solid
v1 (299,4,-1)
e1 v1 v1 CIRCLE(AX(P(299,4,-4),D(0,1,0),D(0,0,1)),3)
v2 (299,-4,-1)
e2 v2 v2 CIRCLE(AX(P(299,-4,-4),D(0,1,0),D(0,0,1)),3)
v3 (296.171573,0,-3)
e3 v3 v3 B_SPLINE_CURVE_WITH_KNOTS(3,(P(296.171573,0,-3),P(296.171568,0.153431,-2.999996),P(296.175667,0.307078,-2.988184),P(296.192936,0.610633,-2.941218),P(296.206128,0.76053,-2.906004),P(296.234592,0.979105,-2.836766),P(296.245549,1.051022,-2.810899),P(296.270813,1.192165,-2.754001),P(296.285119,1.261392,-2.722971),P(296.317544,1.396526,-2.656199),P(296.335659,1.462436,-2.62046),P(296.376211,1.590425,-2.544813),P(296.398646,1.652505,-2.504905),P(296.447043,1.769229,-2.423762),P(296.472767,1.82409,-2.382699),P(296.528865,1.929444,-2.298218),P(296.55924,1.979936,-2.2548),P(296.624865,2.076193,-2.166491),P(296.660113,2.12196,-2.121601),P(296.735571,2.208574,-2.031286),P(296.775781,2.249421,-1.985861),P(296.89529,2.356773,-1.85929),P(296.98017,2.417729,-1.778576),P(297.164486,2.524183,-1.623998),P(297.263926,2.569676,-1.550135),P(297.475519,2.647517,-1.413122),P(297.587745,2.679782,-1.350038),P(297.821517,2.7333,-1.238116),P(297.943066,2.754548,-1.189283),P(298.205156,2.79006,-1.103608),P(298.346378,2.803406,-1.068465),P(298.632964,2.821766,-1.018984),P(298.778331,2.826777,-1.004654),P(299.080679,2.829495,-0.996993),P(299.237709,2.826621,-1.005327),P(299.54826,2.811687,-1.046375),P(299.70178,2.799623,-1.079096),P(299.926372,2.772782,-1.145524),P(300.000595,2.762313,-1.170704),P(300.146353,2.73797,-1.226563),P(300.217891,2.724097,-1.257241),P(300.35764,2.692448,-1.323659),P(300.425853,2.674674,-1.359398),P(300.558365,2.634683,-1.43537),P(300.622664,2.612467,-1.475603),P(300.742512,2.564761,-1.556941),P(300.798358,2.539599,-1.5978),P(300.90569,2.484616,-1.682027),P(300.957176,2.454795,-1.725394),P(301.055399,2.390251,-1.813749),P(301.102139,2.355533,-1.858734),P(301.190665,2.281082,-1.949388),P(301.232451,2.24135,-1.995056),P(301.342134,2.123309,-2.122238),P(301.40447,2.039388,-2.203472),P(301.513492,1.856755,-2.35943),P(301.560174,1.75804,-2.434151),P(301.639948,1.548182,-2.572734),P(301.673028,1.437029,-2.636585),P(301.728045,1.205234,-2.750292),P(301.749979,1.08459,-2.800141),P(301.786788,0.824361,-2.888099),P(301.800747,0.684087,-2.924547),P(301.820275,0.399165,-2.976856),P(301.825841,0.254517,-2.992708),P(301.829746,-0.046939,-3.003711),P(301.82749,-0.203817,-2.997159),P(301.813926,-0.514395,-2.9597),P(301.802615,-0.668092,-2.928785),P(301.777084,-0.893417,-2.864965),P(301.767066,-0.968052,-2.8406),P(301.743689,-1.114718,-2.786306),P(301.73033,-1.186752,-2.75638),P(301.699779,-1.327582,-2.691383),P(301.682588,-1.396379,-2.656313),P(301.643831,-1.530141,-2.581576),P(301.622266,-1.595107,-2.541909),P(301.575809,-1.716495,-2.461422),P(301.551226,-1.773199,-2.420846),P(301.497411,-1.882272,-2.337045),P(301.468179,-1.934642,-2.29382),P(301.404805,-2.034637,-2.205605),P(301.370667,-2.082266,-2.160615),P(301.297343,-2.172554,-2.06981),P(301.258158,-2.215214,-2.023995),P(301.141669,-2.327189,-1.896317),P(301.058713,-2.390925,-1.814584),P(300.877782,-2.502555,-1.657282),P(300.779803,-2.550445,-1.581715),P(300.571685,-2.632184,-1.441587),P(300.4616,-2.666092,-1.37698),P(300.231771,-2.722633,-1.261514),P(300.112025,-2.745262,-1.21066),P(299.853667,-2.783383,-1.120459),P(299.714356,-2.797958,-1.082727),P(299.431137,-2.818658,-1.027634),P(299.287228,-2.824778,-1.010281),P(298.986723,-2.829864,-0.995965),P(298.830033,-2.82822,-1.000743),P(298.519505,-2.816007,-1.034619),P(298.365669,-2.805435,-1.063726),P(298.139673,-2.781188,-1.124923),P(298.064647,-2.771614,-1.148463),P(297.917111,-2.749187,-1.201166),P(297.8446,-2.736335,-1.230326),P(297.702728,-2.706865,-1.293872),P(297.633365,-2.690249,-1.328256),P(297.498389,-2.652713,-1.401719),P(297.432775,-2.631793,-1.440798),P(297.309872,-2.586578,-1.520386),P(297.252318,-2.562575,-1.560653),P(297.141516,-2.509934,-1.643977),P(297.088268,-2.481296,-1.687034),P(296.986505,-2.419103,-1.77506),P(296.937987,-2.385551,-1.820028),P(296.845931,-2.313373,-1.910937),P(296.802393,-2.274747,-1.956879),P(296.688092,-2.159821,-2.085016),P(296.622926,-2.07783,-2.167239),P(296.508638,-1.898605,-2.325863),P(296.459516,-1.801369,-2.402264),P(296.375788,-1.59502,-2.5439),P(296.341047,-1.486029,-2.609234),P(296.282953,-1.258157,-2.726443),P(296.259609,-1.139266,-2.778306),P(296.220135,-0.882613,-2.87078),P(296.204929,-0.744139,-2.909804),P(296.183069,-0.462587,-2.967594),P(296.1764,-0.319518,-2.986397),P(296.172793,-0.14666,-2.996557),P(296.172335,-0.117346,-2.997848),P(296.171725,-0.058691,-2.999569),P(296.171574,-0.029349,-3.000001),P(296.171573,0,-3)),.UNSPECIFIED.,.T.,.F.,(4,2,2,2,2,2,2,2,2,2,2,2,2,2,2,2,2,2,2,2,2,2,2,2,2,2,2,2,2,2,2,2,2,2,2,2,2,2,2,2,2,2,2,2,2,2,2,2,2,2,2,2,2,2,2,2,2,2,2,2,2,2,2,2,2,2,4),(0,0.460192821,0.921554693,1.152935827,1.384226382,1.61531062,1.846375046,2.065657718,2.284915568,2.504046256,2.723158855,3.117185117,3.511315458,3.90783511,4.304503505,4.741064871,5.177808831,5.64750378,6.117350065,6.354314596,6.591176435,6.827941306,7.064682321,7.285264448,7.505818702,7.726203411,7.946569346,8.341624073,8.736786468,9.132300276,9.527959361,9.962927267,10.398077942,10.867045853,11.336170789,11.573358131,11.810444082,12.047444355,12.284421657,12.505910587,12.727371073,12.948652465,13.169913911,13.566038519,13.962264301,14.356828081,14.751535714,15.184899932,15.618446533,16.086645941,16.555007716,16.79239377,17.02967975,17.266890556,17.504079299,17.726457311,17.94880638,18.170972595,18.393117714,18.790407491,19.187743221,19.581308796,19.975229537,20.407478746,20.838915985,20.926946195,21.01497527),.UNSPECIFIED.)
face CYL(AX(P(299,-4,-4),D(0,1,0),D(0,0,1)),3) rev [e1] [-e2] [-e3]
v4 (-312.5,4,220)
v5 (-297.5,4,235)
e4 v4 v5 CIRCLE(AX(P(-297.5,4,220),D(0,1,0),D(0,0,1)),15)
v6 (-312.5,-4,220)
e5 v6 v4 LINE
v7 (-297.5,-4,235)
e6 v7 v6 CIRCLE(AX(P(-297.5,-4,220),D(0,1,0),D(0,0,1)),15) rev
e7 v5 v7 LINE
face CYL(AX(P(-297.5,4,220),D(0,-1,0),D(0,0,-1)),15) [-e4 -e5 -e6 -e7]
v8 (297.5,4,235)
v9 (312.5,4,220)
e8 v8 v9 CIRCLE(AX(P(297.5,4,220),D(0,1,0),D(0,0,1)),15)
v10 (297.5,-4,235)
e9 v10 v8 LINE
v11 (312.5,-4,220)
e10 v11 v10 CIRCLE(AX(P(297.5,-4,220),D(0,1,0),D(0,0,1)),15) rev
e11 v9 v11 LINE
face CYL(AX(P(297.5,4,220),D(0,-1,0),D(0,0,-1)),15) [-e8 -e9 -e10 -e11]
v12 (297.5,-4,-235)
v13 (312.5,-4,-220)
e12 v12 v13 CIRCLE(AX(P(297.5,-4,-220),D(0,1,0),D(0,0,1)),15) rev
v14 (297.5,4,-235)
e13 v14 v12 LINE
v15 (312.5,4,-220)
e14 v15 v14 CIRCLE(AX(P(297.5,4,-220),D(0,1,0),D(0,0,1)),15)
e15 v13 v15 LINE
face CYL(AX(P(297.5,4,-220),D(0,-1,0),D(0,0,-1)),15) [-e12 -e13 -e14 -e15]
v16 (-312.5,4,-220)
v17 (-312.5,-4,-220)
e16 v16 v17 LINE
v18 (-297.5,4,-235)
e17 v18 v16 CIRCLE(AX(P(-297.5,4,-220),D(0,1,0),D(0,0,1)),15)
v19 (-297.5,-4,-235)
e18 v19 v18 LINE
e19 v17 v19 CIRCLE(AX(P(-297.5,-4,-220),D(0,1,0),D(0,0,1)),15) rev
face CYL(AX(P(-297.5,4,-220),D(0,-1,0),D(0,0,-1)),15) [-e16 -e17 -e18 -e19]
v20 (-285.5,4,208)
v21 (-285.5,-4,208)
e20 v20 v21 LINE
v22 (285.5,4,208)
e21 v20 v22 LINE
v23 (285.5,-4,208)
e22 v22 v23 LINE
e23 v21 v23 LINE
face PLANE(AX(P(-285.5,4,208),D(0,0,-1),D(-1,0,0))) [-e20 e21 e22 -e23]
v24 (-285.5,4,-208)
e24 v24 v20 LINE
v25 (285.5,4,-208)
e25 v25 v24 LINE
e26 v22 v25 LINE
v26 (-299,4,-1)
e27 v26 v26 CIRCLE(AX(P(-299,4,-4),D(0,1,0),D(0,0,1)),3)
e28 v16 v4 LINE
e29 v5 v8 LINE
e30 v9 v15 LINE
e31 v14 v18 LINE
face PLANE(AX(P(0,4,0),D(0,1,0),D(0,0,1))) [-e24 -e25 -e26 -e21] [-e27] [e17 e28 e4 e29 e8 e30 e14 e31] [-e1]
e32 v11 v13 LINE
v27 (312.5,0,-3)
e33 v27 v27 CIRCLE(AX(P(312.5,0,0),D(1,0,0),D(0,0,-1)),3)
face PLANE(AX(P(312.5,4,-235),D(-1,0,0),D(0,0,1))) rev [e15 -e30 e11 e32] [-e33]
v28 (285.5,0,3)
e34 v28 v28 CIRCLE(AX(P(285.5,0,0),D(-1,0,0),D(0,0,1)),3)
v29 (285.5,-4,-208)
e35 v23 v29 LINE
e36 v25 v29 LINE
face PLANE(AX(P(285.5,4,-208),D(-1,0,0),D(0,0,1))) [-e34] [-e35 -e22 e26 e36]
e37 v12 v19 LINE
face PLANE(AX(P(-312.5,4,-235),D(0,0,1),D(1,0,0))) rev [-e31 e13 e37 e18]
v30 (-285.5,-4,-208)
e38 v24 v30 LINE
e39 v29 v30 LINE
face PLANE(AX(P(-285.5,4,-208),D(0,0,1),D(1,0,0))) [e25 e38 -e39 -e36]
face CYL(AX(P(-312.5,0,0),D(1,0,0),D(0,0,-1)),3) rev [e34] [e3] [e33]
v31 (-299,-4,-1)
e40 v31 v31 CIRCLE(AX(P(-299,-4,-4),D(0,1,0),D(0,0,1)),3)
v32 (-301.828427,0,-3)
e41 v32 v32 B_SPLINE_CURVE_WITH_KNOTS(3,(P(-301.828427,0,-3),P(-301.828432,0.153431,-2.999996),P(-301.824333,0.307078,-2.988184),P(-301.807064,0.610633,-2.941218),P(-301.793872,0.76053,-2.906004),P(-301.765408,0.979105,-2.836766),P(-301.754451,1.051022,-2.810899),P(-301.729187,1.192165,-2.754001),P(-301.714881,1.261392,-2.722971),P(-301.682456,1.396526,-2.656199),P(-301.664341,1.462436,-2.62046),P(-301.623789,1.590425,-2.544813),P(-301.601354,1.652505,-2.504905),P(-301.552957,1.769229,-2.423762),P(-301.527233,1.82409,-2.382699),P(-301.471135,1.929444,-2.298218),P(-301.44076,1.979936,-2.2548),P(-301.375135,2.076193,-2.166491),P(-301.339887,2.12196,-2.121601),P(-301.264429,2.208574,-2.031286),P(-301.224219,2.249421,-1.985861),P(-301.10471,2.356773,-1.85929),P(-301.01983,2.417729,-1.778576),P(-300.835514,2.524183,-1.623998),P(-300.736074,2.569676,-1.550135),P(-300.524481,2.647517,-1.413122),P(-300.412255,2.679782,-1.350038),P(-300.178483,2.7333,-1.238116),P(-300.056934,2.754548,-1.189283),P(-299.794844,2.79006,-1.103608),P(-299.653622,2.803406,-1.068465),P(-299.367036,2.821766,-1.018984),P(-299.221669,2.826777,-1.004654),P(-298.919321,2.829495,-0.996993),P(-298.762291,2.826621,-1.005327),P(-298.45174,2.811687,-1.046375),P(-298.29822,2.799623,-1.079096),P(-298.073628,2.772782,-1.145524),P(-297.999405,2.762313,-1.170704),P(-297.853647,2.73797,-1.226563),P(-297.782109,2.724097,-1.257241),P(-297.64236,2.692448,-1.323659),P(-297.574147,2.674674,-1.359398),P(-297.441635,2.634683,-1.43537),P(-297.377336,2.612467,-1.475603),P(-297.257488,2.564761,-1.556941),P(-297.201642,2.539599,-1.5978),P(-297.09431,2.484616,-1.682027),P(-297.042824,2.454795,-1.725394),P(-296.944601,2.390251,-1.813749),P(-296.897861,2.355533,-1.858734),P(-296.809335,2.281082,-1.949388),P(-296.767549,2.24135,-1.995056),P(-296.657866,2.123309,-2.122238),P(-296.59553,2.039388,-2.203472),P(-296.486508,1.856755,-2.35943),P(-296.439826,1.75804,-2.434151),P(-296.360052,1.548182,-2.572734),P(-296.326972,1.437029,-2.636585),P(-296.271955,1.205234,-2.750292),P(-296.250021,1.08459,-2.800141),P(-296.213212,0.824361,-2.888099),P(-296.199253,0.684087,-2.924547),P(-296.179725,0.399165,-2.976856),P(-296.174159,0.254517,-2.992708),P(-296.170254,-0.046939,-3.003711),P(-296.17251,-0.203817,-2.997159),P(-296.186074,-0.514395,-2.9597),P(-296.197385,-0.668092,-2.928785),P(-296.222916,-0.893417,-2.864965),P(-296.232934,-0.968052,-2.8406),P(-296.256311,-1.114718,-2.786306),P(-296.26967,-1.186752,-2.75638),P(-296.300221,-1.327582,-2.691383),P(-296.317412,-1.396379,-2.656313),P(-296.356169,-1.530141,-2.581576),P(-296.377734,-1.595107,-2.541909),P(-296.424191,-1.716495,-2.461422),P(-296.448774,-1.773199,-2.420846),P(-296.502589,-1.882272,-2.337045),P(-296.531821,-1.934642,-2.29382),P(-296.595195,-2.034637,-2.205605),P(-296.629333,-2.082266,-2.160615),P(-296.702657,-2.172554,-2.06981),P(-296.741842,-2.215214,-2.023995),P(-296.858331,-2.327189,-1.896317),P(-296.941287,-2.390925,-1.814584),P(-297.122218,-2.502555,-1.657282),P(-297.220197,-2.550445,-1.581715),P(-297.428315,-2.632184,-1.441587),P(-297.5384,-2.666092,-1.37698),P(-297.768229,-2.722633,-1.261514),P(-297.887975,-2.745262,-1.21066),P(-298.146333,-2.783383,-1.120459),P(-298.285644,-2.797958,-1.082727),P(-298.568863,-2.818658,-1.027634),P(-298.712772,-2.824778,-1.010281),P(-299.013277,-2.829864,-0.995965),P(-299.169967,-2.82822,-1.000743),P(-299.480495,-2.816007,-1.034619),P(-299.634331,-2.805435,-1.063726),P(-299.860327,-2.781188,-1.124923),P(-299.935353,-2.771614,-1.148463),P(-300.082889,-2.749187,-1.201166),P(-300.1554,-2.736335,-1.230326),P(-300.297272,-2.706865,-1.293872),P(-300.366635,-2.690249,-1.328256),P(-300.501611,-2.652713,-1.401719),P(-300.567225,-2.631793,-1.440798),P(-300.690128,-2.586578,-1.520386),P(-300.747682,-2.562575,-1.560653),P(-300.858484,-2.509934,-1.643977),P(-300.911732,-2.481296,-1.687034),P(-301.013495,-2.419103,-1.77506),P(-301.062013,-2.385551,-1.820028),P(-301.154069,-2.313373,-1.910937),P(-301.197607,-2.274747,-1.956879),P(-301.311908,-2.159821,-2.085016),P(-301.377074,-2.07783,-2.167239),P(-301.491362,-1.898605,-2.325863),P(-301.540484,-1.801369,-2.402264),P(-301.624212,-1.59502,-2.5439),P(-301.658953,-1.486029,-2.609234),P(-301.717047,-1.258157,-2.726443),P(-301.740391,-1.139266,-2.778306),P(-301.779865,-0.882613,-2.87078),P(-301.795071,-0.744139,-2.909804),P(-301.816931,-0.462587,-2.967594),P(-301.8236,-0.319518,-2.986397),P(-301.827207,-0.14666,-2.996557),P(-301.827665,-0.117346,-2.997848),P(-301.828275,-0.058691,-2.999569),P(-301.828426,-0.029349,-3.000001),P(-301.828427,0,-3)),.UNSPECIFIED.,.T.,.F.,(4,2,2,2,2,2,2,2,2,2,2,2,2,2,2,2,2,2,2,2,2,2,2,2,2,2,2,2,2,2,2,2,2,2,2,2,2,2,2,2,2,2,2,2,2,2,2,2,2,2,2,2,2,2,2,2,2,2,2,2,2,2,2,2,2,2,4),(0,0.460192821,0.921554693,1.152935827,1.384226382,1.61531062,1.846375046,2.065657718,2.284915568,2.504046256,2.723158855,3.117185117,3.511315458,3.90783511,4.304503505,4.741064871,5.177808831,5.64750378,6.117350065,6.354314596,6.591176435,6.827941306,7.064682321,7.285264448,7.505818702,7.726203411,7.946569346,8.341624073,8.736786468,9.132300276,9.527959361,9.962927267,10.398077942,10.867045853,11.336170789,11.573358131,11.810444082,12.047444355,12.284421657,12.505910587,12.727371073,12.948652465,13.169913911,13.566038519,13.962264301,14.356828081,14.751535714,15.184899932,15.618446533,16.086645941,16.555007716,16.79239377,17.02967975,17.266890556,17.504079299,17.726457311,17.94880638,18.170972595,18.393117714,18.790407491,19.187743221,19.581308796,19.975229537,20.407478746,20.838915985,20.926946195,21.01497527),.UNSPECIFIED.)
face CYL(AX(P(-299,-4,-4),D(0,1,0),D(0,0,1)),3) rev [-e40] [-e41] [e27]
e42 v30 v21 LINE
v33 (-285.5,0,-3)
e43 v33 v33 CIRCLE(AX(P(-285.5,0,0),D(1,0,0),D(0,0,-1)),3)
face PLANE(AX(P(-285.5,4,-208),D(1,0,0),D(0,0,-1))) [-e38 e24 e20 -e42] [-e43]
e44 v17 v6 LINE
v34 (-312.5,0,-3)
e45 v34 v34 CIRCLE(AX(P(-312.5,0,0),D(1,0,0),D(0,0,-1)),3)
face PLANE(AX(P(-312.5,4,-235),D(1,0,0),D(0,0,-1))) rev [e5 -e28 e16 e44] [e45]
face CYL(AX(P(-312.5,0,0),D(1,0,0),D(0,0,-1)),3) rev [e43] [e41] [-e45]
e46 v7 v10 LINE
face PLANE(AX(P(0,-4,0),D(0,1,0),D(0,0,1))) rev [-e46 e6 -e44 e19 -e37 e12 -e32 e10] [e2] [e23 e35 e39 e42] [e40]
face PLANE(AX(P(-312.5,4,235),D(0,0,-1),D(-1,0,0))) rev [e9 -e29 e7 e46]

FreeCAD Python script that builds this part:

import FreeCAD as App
import Part
import Sketcher
from FreeCAD import Vector


def edges_at(feature, points):
    """Names of the edges that pass closest to the given points."""
    edges = feature.Shape.Edges
    near = lambda p: min(range(len(edges)), key=lambda i: edges[i].distToShape(Part.Vertex(*p))[0])
    return sorted({f"Edge{near(p) + 1}" for p in points})

doc = App.newDocument("Part")
body = doc.addObject("PartDesign::Body", "Body")

# Sketch on XZ plane
sketch1 = body.newObject("Sketcher::SketchObject", "Sketch")
sketch1.AttachmentSupport = (doc.getObject("XZ_Plane"), [""])
sketch1.MapMode = "FlatFace"
sketch1.addGeometry(Part.LineSegment(Vector(-312.5, -235, 0), Vector(-312.5, 235, 0)), False)
sketch1.addGeometry(Part.LineSegment(Vector(-312.5, 235, 0), Vector(312.5, 235, 0)), False)
sketch1.addGeometry(Part.LineSegment(Vector(312.5, 235, 0), Vector(312.5, -235, 0)), False)
sketch1.addGeometry(Part.LineSegment(Vector(312.5, -235, 0), Vector(-312.5, -235, 0)), False)
sketch1.addGeometry(Part.LineSegment(Vector(285.5, 208, 0), Vector(-285.5, 208, 0)), False)
sketch1.addGeometry(Part.LineSegment(Vector(-285.5, 208, 0), Vector(-285.5, -208, 0)), False)
sketch1.addGeometry(Part.LineSegment(Vector(-285.5, -208, 0), Vector(285.5, -208, 0)), False)
sketch1.addGeometry(Part.LineSegment(Vector(285.5, -208, 0), Vector(285.5, 208, 0)), False)
sketch1.addConstraint(Sketcher.Constraint("Coincident", 0, 2, 1, 1))
sketch1.addConstraint(Sketcher.Constraint("Coincident", 1, 2, 2, 1))
sketch1.addConstraint(Sketcher.Constraint("Coincident", 2, 2, 3, 1))
sketch1.addConstraint(Sketcher.Constraint("Coincident", 3, 2, 0, 1))
sketch1.addConstraint(Sketcher.Constraint("Coincident", 4, 2, 5, 1))
sketch1.addConstraint(Sketcher.Constraint("Coincident", 5, 2, 6, 1))
sketch1.addConstraint(Sketcher.Constraint("Coincident", 6, 2, 7, 1))
sketch1.addConstraint(Sketcher.Constraint("Coincident", 7, 2, 4, 1))
sketch1.addConstraint(Sketcher.Constraint("Vertical", 0))
sketch1.addConstraint(Sketcher.Constraint("Horizontal", 1))
sketch1.addConstraint(Sketcher.Constraint("Vertical", 2))
sketch1.addConstraint(Sketcher.Constraint("Horizontal", 3))
sketch1.addConstraint(Sketcher.Constraint("Horizontal", 4))
sketch1.addConstraint(Sketcher.Constraint("Vertical", 5))
sketch1.addConstraint(Sketcher.Constraint("Horizontal", 6))
sketch1.addConstraint(Sketcher.Constraint("Vertical", 7))
sketch1.addConstraint(Sketcher.Constraint("Symmetric", 0, 2, 2, 2, -1, 1))
sketch1.addConstraint(Sketcher.Constraint("Symmetric", 4, 2, 6, 2, -1, 1))
sketch1.addConstraint(Sketcher.Constraint("DistanceX", 1, 1, 1, 2, 625.0))
sketch1.addConstraint(Sketcher.Constraint("DistanceX", 4, 2, 4, 1, 571.0))
sketch1.addConstraint(Sketcher.Constraint("DistanceY", 0, 1, 0, 2, 470.0))
sketch1.addConstraint(Sketcher.Constraint("DistanceY", 5, 2, 5, 1, 416.0))
pad1 = body.newObject("PartDesign::Pad", "Pad")
pad1.Profile = sketch1
pad1.Length = 8
pad1.Midplane = True
doc.recompute()

fillet = body.newObject("PartDesign::Fillet", "Fillet")
fillet.Base = (pad1, edges_at(pad1, [
    (-312.5, 0, -235),
    (312.5, 0, -235),
    (312.5, 0, 235),
    (-312.5, 0, 235),
]))
fillet.Radius = 15

# Sketch on YZ plane
sketch2 = body.newObject("Sketcher::SketchObject", "Sketch001")
sketch2.AttachmentSupport = (doc.getObject("YZ_Plane"), [""])
sketch2.MapMode = "FlatFace"
sketch2.addGeometry(Part.Circle(Vector(0, 0, 0), Vector(0, 0, 1), 3), False)
sketch2.addConstraint(Sketcher.Constraint("Coincident", 0, 3, -1, 1))
sketch2.addConstraint(Sketcher.Constraint("Diameter", 0, 6.0))
pocket1 = body.newObject("PartDesign::Pocket", "Pocket")
pocket1.Profile = sketch2
pocket1.Type = "ThroughAll"
pocket1.Midplane = True

# Sketch on XZ plane
sketch3 = body.newObject("Sketcher::SketchObject", "Sketch002")
sketch3.AttachmentSupport = (doc.getObject("XZ_Plane"), [""])
sketch3.MapMode = "FlatFace"
sketch3.AttachmentOffset = App.Placement(Vector(0, 0, -4), App.Rotation())
sketch3.addGeometry(Part.Circle(Vector(-299, -4, 0), Vector(0, 0, 1), 3), False)
sketch3.addGeometry(Part.Circle(Vector(299, -4, 0), Vector(0, 0, 1), 3), False)
sketch3.addConstraint(Sketcher.Constraint("Equal", 0, 1))
sketch3.addConstraint(Sketcher.Constraint("Symmetric", 0, 3, 1, 3, -2))
sketch3.addConstraint(Sketcher.Constraint("Diameter", 0, 6.0))
sketch3.addConstraint(Sketcher.Constraint("DistanceX", 0, 3, -1, 1, 299.0))
sketch3.addConstraint(Sketcher.Constraint("DistanceY", 0, 3, -1, 1, 4.0))
pocket2 = body.newObject("PartDesign::Pocket", "Pocket001")
pocket2.Profile = sketch3
pocket2.Type = "ThroughAll"
pocket2.Reversed = True

doc.recompute()
